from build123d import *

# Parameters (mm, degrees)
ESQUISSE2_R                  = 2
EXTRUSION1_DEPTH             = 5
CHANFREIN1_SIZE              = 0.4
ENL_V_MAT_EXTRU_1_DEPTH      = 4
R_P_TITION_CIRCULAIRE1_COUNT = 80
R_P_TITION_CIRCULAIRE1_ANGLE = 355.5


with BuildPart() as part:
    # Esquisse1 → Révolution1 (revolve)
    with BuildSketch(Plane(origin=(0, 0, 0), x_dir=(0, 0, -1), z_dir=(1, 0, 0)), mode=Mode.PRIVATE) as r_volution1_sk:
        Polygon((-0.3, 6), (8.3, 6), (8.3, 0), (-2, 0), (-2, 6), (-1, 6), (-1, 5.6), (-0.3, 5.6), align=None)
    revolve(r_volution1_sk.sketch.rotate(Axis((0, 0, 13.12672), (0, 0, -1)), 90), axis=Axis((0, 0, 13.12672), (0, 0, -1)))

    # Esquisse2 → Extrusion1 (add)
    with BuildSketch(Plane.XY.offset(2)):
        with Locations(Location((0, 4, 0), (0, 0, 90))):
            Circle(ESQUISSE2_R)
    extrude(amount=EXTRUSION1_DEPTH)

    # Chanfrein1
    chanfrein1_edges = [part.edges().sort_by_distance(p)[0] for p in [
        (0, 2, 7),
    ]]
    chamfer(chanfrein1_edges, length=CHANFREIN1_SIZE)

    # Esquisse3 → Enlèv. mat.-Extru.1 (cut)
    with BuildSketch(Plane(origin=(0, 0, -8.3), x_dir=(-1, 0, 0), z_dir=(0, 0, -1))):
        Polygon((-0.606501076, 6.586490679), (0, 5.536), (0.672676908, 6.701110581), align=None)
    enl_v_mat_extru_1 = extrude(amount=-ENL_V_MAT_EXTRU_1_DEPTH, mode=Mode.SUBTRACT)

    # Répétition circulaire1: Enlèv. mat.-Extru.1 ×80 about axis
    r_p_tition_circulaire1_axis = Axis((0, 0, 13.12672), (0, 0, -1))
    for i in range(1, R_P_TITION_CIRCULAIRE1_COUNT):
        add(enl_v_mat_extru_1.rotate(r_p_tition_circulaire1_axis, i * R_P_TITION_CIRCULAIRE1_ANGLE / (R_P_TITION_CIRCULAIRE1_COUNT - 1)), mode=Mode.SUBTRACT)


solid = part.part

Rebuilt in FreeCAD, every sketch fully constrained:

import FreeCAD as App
import Part
import Sketcher
from FreeCAD import Vector
Q = App.Units.Quantity


def edges_at(feature, points):
    """Names of the edges that pass closest to the given points."""
    edges = feature.Shape.Edges
    near = lambda p: min(range(len(edges)), key=lambda i: edges[i].distToShape(Part.Vertex(*p))[0])
    return sorted({f"Edge{near(p) + 1}" for p in points})


def add_polygon(sketch, points):
    """Adds a closed chain of lines whose ends are joined by coincident constraints."""
    first, n = sketch.GeometryCount, len(points)
    for a, b in zip(points, points[1:] + points[:1]):
        sketch.addGeometry(Part.LineSegment(App.Vector(*a, 0), App.Vector(*b, 0)), False)
    for i in range(n):
        sketch.addConstraint(Sketcher.Constraint("Coincident", first + i, 2, first + (i + 1) % n, 1))

doc = App.newDocument("Part")
body = doc.addObject("PartDesign::Body", "Body")

# Sketch on YZ plane
sketch1 = body.newObject("Sketcher::SketchObject", "Sketch")
sketch1.AttachmentSupport = (doc.getObject("YZ_Plane"), [""])
sketch1.MapMode = "FlatFace"
add_polygon(sketch1, [(6, -8.3), (6, 0.3), (5.6, 0.3), (5.6, 1), (6, 1), (6, 2), (0, 2), (0, -8.3)])  # lines 0-7
sketch1.addConstraint([
    Sketcher.Constraint("Vertical", 0),
    Sketcher.Constraint("Horizontal", 1),
    Sketcher.Constraint("Vertical", 2),
    Sketcher.Constraint("Horizontal", 3),
    Sketcher.Constraint("Vertical", 4),
    Sketcher.Constraint("Horizontal", 5),
    Sketcher.Constraint("Vertical", 6),
    Sketcher.Constraint("Horizontal", 7),
    Sketcher.Constraint("PointOnObject", 5, 2, -2),
    Sketcher.Constraint("Vertical", 0, 2, 3, 2),
    Sketcher.Constraint("DistanceX", 5, 2, 5, 1, 6.0),
    Sketcher.Constraint("DistanceY", 4, 1, 4, 2, 1.0),
    Sketcher.Constraint("DistanceX", 1, 2, 1, 1, 0.4),
    Sketcher.Constraint("DistanceY", 0, 1, 0, 2, 8.6),
    Sketcher.Constraint("DistanceY", 2, 1, 2, 2, 0.7),
    Sketcher.Constraint("DistanceY", -1, 1, 2, 2, 1.0),
])
revolution = body.newObject("PartDesign::Revolution", "Revolution")
revolution.Profile = sketch1
revolution.ReferenceAxis = (sketch1, ["V_Axis"])
revolution.Angle = 360

# Sketch on XY plane
sketch2 = body.newObject("Sketcher::SketchObject", "Sketch001")
sketch2.AttachmentSupport = (doc.getObject("XY_Plane"), [""])
sketch2.MapMode = "FlatFace"
sketch2.AttachmentOffset = App.Placement(Vector(0, 0, 2), App.Rotation())
sketch2.addGeometry(Part.Circle(Vector(0, 4, 0), Vector(0, 0, 1), 2), False)
sketch2.addConstraint([
    Sketcher.Constraint("PointOnObject", 0, 3, -2),
    Sketcher.Constraint("Diameter", 0, 4.0),
    Sketcher.Constraint("DistanceY", -1, 1, 0, 3, 4.0),
])
pad1 = body.newObject("PartDesign::Pad", "Pad")
pad1.Profile = sketch2
pad1.Length = 5
doc.recompute()

chamfer = body.newObject("PartDesign::Chamfer", "Chamfer")
chamfer.Base = (pad1, edges_at(pad1, [(0, 2, 7)]))
chamfer.Size = 0.4

# Sketch on XY plane
sketch3 = body.newObject("Sketcher::SketchObject", "Sketch002")
sketch3.AttachmentSupport = (doc.getObject("XY_Plane"), [""])
sketch3.MapMode = "FlatFace"
sketch3.AttachmentOffset = App.Placement(Vector(0, 0, -8.3), App.Rotation())
add_polygon(sketch3, [(0.606501, 6.586491), (0, 5.536), (-0.672677, 6.701111)])  # lines 0-2
sketch3.addConstraint([
    Sketcher.Constraint("PointOnObject", 0, 2, -2),
    Sketcher.Constraint("Angle", 0, Q("-120 deg")),
    Sketcher.Constraint("Angle", 1, Q("120 deg")),
    Sketcher.Constraint("DistanceY", -1, 1, 0, 2, 5.536),
    Sketcher.Constraint("DistanceX", -1, 1, 2, 2, 0.606501),
    Sketcher.Constraint("DistanceY", -1, 1, 1, 2, 6.701111),
])
pocket1 = body.newObject("PartDesign::Pocket", "Pocket")
pocket1.Profile = sketch3
pocket1.Length = 4
pocket1.Reversed = True
doc.recompute()

polarpattern = body.newObject("PartDesign::PolarPattern", "PolarPattern")
polarpattern.Originals = [pocket1]
polarpattern.Axis = (doc.getObject("Z_Axis"), [""])
polarpattern.Angle = 360
polarpattern.Occurrences = 80
body.Tip = polarpattern

doc.recompute()
